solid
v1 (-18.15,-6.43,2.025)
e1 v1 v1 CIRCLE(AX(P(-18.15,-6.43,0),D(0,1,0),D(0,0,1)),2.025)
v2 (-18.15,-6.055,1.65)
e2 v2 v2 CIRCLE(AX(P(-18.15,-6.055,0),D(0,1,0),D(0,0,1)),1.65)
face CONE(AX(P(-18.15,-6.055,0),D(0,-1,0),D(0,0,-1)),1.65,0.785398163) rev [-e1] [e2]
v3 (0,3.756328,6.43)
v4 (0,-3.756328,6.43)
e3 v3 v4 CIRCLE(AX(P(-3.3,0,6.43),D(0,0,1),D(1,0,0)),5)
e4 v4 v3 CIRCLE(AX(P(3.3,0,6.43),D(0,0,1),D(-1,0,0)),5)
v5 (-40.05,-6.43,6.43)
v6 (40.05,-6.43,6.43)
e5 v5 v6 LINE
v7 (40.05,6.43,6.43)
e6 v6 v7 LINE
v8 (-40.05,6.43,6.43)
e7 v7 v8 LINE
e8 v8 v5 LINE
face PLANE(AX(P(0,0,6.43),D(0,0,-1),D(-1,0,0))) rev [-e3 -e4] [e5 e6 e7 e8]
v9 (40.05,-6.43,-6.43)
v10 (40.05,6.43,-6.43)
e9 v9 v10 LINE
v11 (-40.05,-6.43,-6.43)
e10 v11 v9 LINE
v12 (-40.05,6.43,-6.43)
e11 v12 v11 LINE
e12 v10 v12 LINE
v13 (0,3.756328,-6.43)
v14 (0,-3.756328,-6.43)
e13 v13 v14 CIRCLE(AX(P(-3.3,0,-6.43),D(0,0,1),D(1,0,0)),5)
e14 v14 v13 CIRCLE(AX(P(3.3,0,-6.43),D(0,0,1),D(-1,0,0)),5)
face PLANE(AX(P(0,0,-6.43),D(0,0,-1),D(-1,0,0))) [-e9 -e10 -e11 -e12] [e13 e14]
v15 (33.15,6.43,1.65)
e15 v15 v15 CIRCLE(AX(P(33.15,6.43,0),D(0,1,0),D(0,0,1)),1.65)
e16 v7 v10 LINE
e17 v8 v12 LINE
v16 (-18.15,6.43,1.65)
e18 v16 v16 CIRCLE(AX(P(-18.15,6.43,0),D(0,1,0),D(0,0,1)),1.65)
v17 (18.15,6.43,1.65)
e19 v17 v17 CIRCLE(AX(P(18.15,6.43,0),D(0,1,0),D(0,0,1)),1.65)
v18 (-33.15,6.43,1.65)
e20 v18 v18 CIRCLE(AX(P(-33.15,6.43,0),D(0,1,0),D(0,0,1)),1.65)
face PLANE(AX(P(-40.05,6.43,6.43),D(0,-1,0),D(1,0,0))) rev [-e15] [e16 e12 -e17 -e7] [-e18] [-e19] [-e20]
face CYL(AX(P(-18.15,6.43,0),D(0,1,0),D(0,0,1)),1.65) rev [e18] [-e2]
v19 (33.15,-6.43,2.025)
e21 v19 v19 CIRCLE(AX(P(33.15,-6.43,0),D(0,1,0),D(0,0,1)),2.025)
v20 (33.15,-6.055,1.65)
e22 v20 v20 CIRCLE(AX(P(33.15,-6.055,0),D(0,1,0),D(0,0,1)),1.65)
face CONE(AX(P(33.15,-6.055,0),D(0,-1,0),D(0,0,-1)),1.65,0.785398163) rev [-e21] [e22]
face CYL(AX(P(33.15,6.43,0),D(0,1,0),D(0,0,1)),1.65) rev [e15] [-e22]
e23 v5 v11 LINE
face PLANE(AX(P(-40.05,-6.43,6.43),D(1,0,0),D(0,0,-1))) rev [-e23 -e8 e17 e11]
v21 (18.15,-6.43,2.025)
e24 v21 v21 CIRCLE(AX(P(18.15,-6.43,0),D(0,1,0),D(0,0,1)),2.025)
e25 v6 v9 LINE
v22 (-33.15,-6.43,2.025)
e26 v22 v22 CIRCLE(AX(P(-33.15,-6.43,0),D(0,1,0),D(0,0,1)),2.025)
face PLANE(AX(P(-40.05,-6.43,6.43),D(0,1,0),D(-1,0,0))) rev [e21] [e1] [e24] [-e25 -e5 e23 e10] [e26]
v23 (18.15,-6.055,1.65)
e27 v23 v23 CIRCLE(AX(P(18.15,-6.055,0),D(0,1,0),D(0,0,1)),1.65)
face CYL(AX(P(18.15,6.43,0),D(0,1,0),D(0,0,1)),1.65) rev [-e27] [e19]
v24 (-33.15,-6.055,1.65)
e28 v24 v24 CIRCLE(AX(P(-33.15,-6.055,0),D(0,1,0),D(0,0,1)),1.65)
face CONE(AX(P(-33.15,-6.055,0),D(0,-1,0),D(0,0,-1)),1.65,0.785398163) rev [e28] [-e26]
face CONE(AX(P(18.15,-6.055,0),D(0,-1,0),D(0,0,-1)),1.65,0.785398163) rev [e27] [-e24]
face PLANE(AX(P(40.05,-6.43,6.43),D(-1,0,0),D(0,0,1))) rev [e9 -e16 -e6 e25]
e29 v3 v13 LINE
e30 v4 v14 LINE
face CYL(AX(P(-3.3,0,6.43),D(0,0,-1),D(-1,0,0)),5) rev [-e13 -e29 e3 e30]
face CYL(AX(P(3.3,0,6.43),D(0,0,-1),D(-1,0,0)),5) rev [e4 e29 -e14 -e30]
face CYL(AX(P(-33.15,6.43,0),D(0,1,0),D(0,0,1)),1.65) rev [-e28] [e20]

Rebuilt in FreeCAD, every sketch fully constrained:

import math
import FreeCAD as App
import Part
import Sketcher

V = App.Vector
Q = App.Units.Quantity

doc = App.newDocument("Part")
body = doc.addObject("PartDesign::Body", "Body")

sketch1 = body.newObject("Sketcher::SketchObject", "Sketch")
sketch1.AttachmentSupport = (doc.getObject("XY_Plane"), [""])
sketch1.MapMode = "FlatFace"
sketch1.addGeometry([
    Part.LineSegment(V(-40, 6, 0), V(-40, -6, 0)),
    Part.LineSegment(V(-40, -6, 0), V(40, -6, 0)),
    Part.LineSegment(V(40, -6, 0), V(40, 6, 0)),
    Part.LineSegment(V(40, 6, 0), V(-40, 6, 0)),
    Part.ArcOfCircle(Part.Circle(V(-3, 0, 0), V(0, 0, 1), 5), math.radians(49), math.radians(311)),
    Part.ArcOfCircle(Part.Circle(V(3, 0, 0), V(0, 0, 1), 5), math.radians(-131), math.radians(131)),
], False)
sketch1.addConstraint([
    Sketcher.Constraint("Coincident", 0, 2, 1, 1),
    Sketcher.Constraint("Coincident", 1, 2, 2, 1),
    Sketcher.Constraint("Coincident", 2, 2, 3, 1),
    Sketcher.Constraint("Coincident", 3, 2, 0, 1),
    Sketcher.Constraint("Coincident", 4, 1, 5, 2),
    Sketcher.Constraint("Coincident", 5, 1, 4, 2),
    Sketcher.Constraint("Vertical", 0),
    Sketcher.Constraint("Horizontal", 1),
    Sketcher.Constraint("Vertical", 2),
    Sketcher.Constraint("Horizontal", 3),
    Sketcher.Constraint("Equal", 4, 5),
    Sketcher.Constraint("Symmetric", 4, 3, 5, 3, -1, 1),
    Sketcher.Constraint("Symmetric", 0, 2, 2, 2, -1, 1),
    Sketcher.Constraint("PointOnObject", 4, 3, -1),
    Sketcher.Constraint("Radius", 4, 5.0),
    Sketcher.Constraint("DistanceX", 1, 1, 1, 2, 80.1),
    Sketcher.Constraint("DistanceY", 0, 2, 0, 1, 12.86),
    Sketcher.Constraint("DistanceX", 4, 3, -1, 1, 3.3),
])
pad1 = body.newObject("PartDesign::Pad", "Pad")
pad1.Profile = sketch1
pad1.Length = 12.86
pad1.Midplane = True

sketch2 = body.newObject("Sketcher::SketchObject", "Sketch001")
sketch2.AttachmentSupport = (doc.getObject("YZ_Plane"), [""])
sketch2.MapMode = "FlatFace"
sketch2.AttachmentOffset = App.Placement(V(0, 0, -33.15), App.Rotation())
sketch2.addGeometry([
    Part.LineSegment(V(-6.4, 0, 0), V(6.4, 0, 0)),
    Part.LineSegment(V(6.4, 0, 0), V(6.4, 1.6, 0)),
    Part.LineSegment(V(6.4, 1.6, 0), V(-6.1, 1.6, 0)),
    Part.LineSegment(V(-6.1, 1.6, 0), V(-6.4, 2, 0)),
    Part.LineSegment(V(-6.4, 2, 0), V(-6.4, 0, 0)),
], False)
sketch2.addConstraint([
    Sketcher.Constraint("Coincident", 0, 2, 1, 1),
    Sketcher.Constraint("Coincident", 1, 2, 2, 1),
    Sketcher.Constraint("Coincident", 2, 2, 3, 1),
    Sketcher.Constraint("Coincident", 3, 2, 4, 1),
    Sketcher.Constraint("Coincident", 4, 2, 0, 1),
    Sketcher.Constraint("Horizontal", 0),
    Sketcher.Constraint("Vertical", 1),
    Sketcher.Constraint("Horizontal", 2),
    Sketcher.Constraint("Vertical", 4),
    Sketcher.Constraint("Symmetric", 0, 2, 4, 2, -1, 1),
    Sketcher.Constraint("Angle", 3, Q("135 deg")),
    Sketcher.Constraint("DistanceX", 0, 1, 0, 2, 12.86),
    Sketcher.Constraint("DistanceY", 1, 1, 1, 2, 1.65),
    Sketcher.Constraint("DistanceX", 2, 2, 2, 1, 12.485),
])
groove = body.newObject("PartDesign::Groove", "Groove")
groove.Profile = sketch2
groove.ReferenceAxis = (sketch2, ["H_Axis"])
groove.Angle = 360
doc.recompute()

linearpattern = body.newObject("PartDesign::LinearPattern", "LinearPattern")
linearpattern.Originals = [groove]
linearpattern.Direction = (doc.getObject("X_Axis"), [""])
linearpattern.Mode = "offset"
linearpattern.Offset = 15
linearpattern.Occurrences = 2
body.Tip = linearpattern
doc.recompute()

linearpattern2 = body.newObject("PartDesign::LinearPattern", "LinearPattern001")
linearpattern2.Originals = [groove]
linearpattern2.Direction = (doc.getObject("X_Axis"), [""])
linearpattern2.Mode = "offset"
linearpattern2.Offset = 51.3
linearpattern2.Occurrences = 2
body.Tip = linearpattern2
doc.recompute()

linearpattern3 = body.newObject("PartDesign::LinearPattern", "LinearPattern002")
linearpattern3.Originals = [groove]
linearpattern3.Direction = (doc.getObject("X_Axis"), [""])
linearpattern3.Mode = "offset"
linearpattern3.Offset = 66.3
linearpattern3.Occurrences = 2
body.Tip = linearpattern3

doc.recompute()
